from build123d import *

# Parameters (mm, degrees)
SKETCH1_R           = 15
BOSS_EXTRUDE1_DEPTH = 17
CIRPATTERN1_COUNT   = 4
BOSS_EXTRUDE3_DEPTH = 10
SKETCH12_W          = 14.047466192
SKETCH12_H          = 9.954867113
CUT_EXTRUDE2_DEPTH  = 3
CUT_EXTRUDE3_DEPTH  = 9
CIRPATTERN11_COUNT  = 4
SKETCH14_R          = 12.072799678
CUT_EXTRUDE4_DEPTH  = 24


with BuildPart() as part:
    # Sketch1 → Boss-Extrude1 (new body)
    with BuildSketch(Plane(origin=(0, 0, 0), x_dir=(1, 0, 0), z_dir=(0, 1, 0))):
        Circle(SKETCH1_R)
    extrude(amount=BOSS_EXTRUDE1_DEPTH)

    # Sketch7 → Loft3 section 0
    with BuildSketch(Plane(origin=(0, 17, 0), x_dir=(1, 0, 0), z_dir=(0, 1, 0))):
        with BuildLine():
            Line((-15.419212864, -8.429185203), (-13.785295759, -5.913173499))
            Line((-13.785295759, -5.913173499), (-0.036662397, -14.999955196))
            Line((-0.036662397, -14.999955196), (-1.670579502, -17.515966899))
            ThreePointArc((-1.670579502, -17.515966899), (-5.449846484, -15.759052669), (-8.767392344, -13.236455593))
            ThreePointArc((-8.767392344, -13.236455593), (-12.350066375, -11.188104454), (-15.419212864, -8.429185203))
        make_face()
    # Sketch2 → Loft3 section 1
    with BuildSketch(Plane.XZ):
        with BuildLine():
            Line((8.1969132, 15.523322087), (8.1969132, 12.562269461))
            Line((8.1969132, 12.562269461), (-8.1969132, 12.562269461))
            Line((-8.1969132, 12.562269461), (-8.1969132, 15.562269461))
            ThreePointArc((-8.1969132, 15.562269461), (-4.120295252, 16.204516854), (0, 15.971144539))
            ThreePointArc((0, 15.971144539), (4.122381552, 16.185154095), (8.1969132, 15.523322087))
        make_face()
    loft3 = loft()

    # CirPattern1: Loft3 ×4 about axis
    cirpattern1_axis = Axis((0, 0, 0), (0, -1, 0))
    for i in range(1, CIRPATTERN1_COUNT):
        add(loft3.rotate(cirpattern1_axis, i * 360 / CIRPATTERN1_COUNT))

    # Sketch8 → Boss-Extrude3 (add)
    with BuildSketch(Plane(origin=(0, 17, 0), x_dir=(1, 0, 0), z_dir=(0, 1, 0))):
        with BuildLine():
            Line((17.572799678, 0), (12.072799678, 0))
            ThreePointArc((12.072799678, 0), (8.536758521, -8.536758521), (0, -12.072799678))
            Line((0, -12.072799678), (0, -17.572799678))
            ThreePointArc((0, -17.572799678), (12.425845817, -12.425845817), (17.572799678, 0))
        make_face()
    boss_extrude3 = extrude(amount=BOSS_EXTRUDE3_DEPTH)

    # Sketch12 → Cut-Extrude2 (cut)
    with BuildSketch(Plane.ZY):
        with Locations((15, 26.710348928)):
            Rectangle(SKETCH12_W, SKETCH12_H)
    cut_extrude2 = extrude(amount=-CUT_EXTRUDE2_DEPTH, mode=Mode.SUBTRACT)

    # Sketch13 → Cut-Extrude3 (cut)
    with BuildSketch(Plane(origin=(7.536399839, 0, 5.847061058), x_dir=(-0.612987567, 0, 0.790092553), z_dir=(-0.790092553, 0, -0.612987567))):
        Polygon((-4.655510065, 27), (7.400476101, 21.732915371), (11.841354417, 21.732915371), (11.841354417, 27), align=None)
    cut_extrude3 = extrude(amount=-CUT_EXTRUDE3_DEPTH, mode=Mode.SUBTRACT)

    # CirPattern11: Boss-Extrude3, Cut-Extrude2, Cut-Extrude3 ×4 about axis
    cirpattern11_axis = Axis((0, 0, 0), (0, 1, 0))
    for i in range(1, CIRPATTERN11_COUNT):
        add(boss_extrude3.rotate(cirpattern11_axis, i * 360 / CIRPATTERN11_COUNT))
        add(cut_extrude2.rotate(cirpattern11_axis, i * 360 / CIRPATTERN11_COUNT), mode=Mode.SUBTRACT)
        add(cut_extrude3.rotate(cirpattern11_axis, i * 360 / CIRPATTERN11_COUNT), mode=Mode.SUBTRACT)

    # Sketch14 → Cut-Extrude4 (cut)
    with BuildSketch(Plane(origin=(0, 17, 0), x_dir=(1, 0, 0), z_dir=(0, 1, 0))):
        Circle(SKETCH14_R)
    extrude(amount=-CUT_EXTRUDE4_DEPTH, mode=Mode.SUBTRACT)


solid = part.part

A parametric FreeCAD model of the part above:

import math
import FreeCAD as App
import Part
import Sketcher
from FreeCAD import Vector
Q = App.Units.Quantity

doc = App.newDocument("Part")
body = doc.addObject("PartDesign::Body", "Body")

# Sketch on XZ plane
sketch1 = body.newObject("Sketcher::SketchObject", "Sketch")
sketch1.AttachmentSupport = (doc.getObject("XZ_Plane"), [""])
sketch1.MapMode = "FlatFace"
sketch1.addGeometry(Part.Circle(Vector(0, 0, 0), Vector(0, 0, 1), 15), False)
sketch1.addConstraint(Sketcher.Constraint("Coincident", 0, 3, -1, 1))
sketch1.addConstraint(Sketcher.Constraint("Diameter", 0, 30.0))
pad1 = body.newObject("PartDesign::Pad", "Pad")
pad1.Profile = sketch1
pad1.Length = 17
pad1.Reversed = True

# Sketch on XZ plane
sketch2 = body.newObject("Sketcher::SketchObject", "Sketch001")
sketch2.AttachmentSupport = (doc.getObject("XZ_Plane"), [""])
sketch2.MapMode = "FlatFace"
sketch2.AttachmentOffset = App.Placement(Vector(0, 0, -17), App.Rotation())
sketch2.addGeometry(Part.LineSegment(Vector(-13.8, 5.9, 0), Vector(-15.4, 8.4, 0)), False)
sketch2.addGeometry(Part.ArcOfCircle(Part.Circle(Vector(-1, -4.6, 0), Vector(0, 0, 1), 19.4), math.radians(114), math.radians(138)), False)
sketch2.addGeometry(Part.ArcOfCircle(Part.Circle(Vector(4.6, -0.9, 0), Vector(0, 0, 1), 19.4), math.radians(109), math.radians(133)), False)
sketch2.addGeometry(Part.LineSegment(Vector(-1.7, 17.5, 0), Vector(0, 15, 0)), False)
sketch2.addGeometry(Part.LineSegment(Vector(0, 15, 0), Vector(-13.8, 5.9, 0)), False)
sketch2.addConstraint(Sketcher.Constraint("Coincident", 0, 2, 1, 2))
sketch2.addConstraint(Sketcher.Constraint("Coincident", 1, 1, 2, 2))
sketch2.addConstraint(Sketcher.Constraint("Coincident", 2, 1, 3, 1))
sketch2.addConstraint(Sketcher.Constraint("Coincident", 3, 2, 4, 1))
sketch2.addConstraint(Sketcher.Constraint("Coincident", 4, 2, 0, 1))
sketch2.addConstraint(Sketcher.Constraint("Equal", 1, 2))
sketch2.addConstraint(Sketcher.Constraint("Parallel", 0, 3))
sketch2.addConstraint(Sketcher.Constraint("Equal", 0, 3))
sketch2.addConstraint(Sketcher.Constraint("Angle", 0, Q("123 deg")))
sketch2.addConstraint(Sketcher.Constraint("Distance", 0, 3.0))
sketch2.addConstraint(Sketcher.Constraint("Radius", 1, 19.426409))
sketch2.addConstraint(Sketcher.Constraint("DistanceY", 1, 1, 3, 2, 1.7635))
sketch2.addConstraint(Sketcher.Constraint("DistanceY", 1, 3, -1, 1, 4.556911))
sketch2.addConstraint(Sketcher.Constraint("DistanceX", -1, 1, 2, 3, 4.58186))
sketch2.addConstraint(Sketcher.Constraint("DistanceY", 2, 3, -1, 1, 0.876759))
sketch2.addConstraint(Sketcher.Constraint("DistanceX", 2, 1, -1, 1, 1.67058))
sketch2.addConstraint(Sketcher.Constraint("DistanceX", 0, 2, 1, 3, 14.448068))

# Sketch on XZ plane
sketch3 = body.newObject("Sketcher::SketchObject", "Sketch002")
sketch3.AttachmentSupport = (doc.getObject("XZ_Plane"), [""])
sketch3.MapMode = "FlatFace"
sketch3.addGeometry(Part.LineSegment(Vector(8.2, 12.6, 0), Vector(8.2, 15.5, 0)), False)
sketch3.addGeometry(Part.ArcOfCircle(Part.Circle(Vector(3.1, -3.2, 0), Vector(0, 0, 1), 19.4), math.radians(75), math.radians(99)), False)
sketch3.addGeometry(Part.ArcOfCircle(Part.Circle(Vector(-3.2, -3.2, 0), Vector(0, 0, 1), 19.4), math.radians(81), math.radians(105)), False)
sketch3.addGeometry(Part.LineSegment(Vector(-8.2, 15.6, 0), Vector(-8.2, 12.6, 0)), False)
sketch3.addGeometry(Part.LineSegment(Vector(-8.2, 12.6, 0), Vector(8.2, 12.6, 0)), False)
sketch3.addConstraint(Sketcher.Constraint("Coincident", 0, 2, 1, 1))
sketch3.addConstraint(Sketcher.Constraint("Coincident", 1, 2, 2, 1))
sketch3.addConstraint(Sketcher.Constraint("Coincident", 2, 2, 3, 1))
sketch3.addConstraint(Sketcher.Constraint("Coincident", 3, 2, 4, 1))
sketch3.addConstraint(Sketcher.Constraint("Coincident", 4, 2, 0, 1))
sketch3.addConstraint(Sketcher.Constraint("Vertical", 0))
sketch3.addConstraint(Sketcher.Constraint("Vertical", 3))
sketch3.addConstraint(Sketcher.Constraint("Horizontal", 4))
sketch3.addConstraint(Sketcher.Constraint("Equal", 1, 2))
sketch3.addConstraint(Sketcher.Constraint("PointOnObject", 1, 2, -2))
sketch3.addConstraint(Sketcher.Constraint("DistanceY", 3, 2, 3, 1, 3.0))
sketch3.addConstraint(Sketcher.Constraint("Radius", 1, 19.426409))
sketch3.addConstraint(Sketcher.Constraint("DistanceX", 4, 1, 4, 2, 16.393826))
sketch3.addConstraint(Sketcher.Constraint("DistanceY", 0, 1, 0, 2, 2.961053))
sketch3.addConstraint(Sketcher.Constraint("DistanceY", 1, 3, -1, 1, 3.212328))
sketch3.addConstraint(Sketcher.Constraint("DistanceX", 2, 3, -1, 1, 3.152478))
sketch3.addConstraint(Sketcher.Constraint("DistanceY", 2, 3, -1, 1, 3.197769))

additiveloft = body.newObject("PartDesign::AdditiveLoft", "AdditiveLoft")
additiveloft.Profile = sketch2
additiveloft.Sections = [sketch3]
doc.recompute()

polarpattern = body.newObject("PartDesign::PolarPattern", "PolarPattern")
polarpattern.Originals = [additiveloft]
polarpattern.Axis = (doc.getObject("Y_Axis"), [""])
polarpattern.Angle = 360
polarpattern.Occurrences = 4
body.Tip = polarpattern

# Sketch on XZ plane
sketch4 = body.newObject("Sketcher::SketchObject", "Sketch003")
sketch4.AttachmentSupport = (doc.getObject("XZ_Plane"), [""])
sketch4.MapMode = "FlatFace"
sketch4.AttachmentOffset = App.Placement(Vector(0, 0, -17), App.Rotation())
sketch4.addGeometry(Part.LineSegment(Vector(18, 0, 0), Vector(12, 0, 0)), False)
sketch4.addGeometry(Part.ArcOfCircle(Part.Circle(Vector(0, 0, 0), Vector(0, 0, 1), 12), math.radians(0), math.radians(90)), False)
sketch4.addGeometry(Part.LineSegment(Vector(0, 12, 0), Vector(0, 18, 0)), False)
sketch4.addGeometry(Part.ArcOfCircle(Part.Circle(Vector(0, 0, 0), Vector(0, 0, 1), 18), math.radians(0), math.radians(90)), False)
sketch4.addConstraint(Sketcher.Constraint("Coincident", 0, 2, 1, 1))
sketch4.addConstraint(Sketcher.Constraint("Coincident", 1, 2, 2, 1))
sketch4.addConstraint(Sketcher.Constraint("Coincident", 2, 2, 3, 2))
sketch4.addConstraint(Sketcher.Constraint("Coincident", 3, 1, 0, 1))
sketch4.addConstraint(Sketcher.Constraint("Horizontal", 0))
sketch4.addConstraint(Sketcher.Constraint("Vertical", 2))
sketch4.addConstraint(Sketcher.Constraint("Coincident", 1, 3, -1, 1))
sketch4.addConstraint(Sketcher.Constraint("Coincident", 3, 3, -1, 1))
sketch4.addConstraint(Sketcher.Constraint("PointOnObject", 0, 2, -1))
sketch4.addConstraint(Sketcher.Constraint("PointOnObject", 1, 2, -2))
sketch4.addConstraint(Sketcher.Constraint("DistanceX", 0, 2, 0, 1, 5.5))
sketch4.addConstraint(Sketcher.Constraint("Radius", 1, 12.0728))
pad2 = body.newObject("PartDesign::Pad", "Pad001")
pad2.Profile = sketch4
pad2.Length = 10
pad2.Reversed = True

# Sketch on YZ plane
sketch5 = body.newObject("Sketcher::SketchObject", "Sketch004")
sketch5.AttachmentSupport = (doc.getObject("YZ_Plane"), [""])
sketch5.MapMode = "FlatFace"
sketch5.addGeometry(Part.LineSegment(Vector(32, 8, 0), Vector(22, 8, 0)), False)
sketch5.addGeometry(Part.LineSegment(Vector(22, 8, 0), Vector(22, 22, 0)), False)
sketch5.addGeometry(Part.LineSegment(Vector(22, 22, 0), Vector(32, 22, 0)), False)
sketch5.addGeometry(Part.LineSegment(Vector(32, 22, 0), Vector(32, 8, 0)), False)
sketch5.addConstraint(Sketcher.Constraint("Coincident", 0, 2, 1, 1))
sketch5.addConstraint(Sketcher.Constraint("Coincident", 1, 2, 2, 1))
sketch5.addConstraint(Sketcher.Constraint("Coincident", 2, 2, 3, 1))
sketch5.addConstraint(Sketcher.Constraint("Coincident", 3, 2, 0, 1))
sketch5.addConstraint(Sketcher.Constraint("Horizontal", 0))
sketch5.addConstraint(Sketcher.Constraint("Vertical", 1))
sketch5.addConstraint(Sketcher.Constraint("Horizontal", 2))
sketch5.addConstraint(Sketcher.Constraint("Vertical", 3))
sketch5.addConstraint(Sketcher.Constraint("DistanceX", 0, 2, 0, 1, 9.954867))
sketch5.addConstraint(Sketcher.Constraint("DistanceY", 1, 1, 1, 2, 14.047466))
sketch5.addConstraint(Sketcher.Constraint("DistanceX", -1, 1, 0, 2, 21.732915))
sketch5.addConstraint(Sketcher.Constraint("DistanceY", -1, 1, 0, 2, 7.976267))
pocket1 = body.newObject("PartDesign::Pocket", "Pocket")
pocket1.Profile = sketch5
pocket1.Length = 3
pocket1.Reversed = True

# Sketch on an angled plane
sketch6 = body.newObject("Sketcher::SketchObject", "Sketch005")
sketch6.Placement = App.Placement(Vector(7.5364, 0, 5.847061), App.Rotation(Vector(-0.612987567, 0, 0.790092553), Vector(0, 1, 0), Vector(-0.790092553, 0, -0.612987567), "ZXY"))
sketch6.addGeometry(Part.LineSegment(Vector(-4.7, 27, 0), Vector(7.4, 21.7, 0)), False)
sketch6.addGeometry(Part.LineSegment(Vector(7.4, 21.7, 0), Vector(11.8, 21.7, 0)), False)
sketch6.addGeometry(Part.LineSegment(Vector(11.8, 21.7, 0), Vector(11.8, 27, 0)), False)
sketch6.addGeometry(Part.LineSegment(Vector(11.8, 27, 0), Vector(-4.7, 27, 0)), False)
sketch6.addConstraint(Sketcher.Constraint("Coincident", 0, 2, 1, 1))
sketch6.addConstraint(Sketcher.Constraint("Coincident", 1, 2, 2, 1))
sketch6.addConstraint(Sketcher.Constraint("Coincident", 2, 2, 3, 1))
sketch6.addConstraint(Sketcher.Constraint("Coincident", 3, 2, 0, 1))
sketch6.addConstraint(Sketcher.Constraint("Horizontal", 1))
sketch6.addConstraint(Sketcher.Constraint("Vertical", 2))
sketch6.addConstraint(Sketcher.Constraint("Horizontal", 3))
sketch6.addConstraint(Sketcher.Constraint("DistanceY", -1, 1, 2, 2, 27.0))
sketch6.addConstraint(Sketcher.Constraint("DistanceX", 1, 1, 1, 2, 4.440878))
sketch6.addConstraint(Sketcher.Constraint("Distance", 0, 13.156329))
sketch6.addConstraint(Sketcher.Constraint("DistanceX", 3, 2, 3, 1, 16.496864))
sketch6.addConstraint(Sketcher.Constraint("DistanceX", 3, 2, -1, 1, 4.65551))
pocket2 = body.newObject("PartDesign::Pocket", "Pocket001")
pocket2.Profile = sketch6
pocket2.Length = 9
doc.recompute()

polarpattern2 = body.newObject("PartDesign::PolarPattern", "PolarPattern001")
polarpattern2.Originals = [pad2, pocket1, pocket2]
polarpattern2.Axis = (doc.getObject("Y_Axis"), [""])
polarpattern2.Angle = 360
polarpattern2.Occurrences = 4
body.Tip = polarpattern2

# Sketch on XZ plane
sketch7 = body.newObject("Sketcher::SketchObject", "Sketch006")
sketch7.AttachmentSupport = (doc.getObject("XZ_Plane"), [""])
sketch7.MapMode = "FlatFace"
sketch7.AttachmentOffset = App.Placement(Vector(0, 0, -17), App.Rotation())
sketch7.addGeometry(Part.Circle(Vector(0, 0, 0), Vector(0, 0, 1), 12), False)
sketch7.addConstraint(Sketcher.Constraint("Coincident", 0, 3, -1, 1))
sketch7.addConstraint(Sketcher.Constraint("Diameter", 0, 24.145599))
pocket3 = body.newObject("PartDesign::Pocket", "Pocket002")
pocket3.Profile = sketch7
pocket3.Length = 24
pocket3.Reversed = True

doc.recompute()
